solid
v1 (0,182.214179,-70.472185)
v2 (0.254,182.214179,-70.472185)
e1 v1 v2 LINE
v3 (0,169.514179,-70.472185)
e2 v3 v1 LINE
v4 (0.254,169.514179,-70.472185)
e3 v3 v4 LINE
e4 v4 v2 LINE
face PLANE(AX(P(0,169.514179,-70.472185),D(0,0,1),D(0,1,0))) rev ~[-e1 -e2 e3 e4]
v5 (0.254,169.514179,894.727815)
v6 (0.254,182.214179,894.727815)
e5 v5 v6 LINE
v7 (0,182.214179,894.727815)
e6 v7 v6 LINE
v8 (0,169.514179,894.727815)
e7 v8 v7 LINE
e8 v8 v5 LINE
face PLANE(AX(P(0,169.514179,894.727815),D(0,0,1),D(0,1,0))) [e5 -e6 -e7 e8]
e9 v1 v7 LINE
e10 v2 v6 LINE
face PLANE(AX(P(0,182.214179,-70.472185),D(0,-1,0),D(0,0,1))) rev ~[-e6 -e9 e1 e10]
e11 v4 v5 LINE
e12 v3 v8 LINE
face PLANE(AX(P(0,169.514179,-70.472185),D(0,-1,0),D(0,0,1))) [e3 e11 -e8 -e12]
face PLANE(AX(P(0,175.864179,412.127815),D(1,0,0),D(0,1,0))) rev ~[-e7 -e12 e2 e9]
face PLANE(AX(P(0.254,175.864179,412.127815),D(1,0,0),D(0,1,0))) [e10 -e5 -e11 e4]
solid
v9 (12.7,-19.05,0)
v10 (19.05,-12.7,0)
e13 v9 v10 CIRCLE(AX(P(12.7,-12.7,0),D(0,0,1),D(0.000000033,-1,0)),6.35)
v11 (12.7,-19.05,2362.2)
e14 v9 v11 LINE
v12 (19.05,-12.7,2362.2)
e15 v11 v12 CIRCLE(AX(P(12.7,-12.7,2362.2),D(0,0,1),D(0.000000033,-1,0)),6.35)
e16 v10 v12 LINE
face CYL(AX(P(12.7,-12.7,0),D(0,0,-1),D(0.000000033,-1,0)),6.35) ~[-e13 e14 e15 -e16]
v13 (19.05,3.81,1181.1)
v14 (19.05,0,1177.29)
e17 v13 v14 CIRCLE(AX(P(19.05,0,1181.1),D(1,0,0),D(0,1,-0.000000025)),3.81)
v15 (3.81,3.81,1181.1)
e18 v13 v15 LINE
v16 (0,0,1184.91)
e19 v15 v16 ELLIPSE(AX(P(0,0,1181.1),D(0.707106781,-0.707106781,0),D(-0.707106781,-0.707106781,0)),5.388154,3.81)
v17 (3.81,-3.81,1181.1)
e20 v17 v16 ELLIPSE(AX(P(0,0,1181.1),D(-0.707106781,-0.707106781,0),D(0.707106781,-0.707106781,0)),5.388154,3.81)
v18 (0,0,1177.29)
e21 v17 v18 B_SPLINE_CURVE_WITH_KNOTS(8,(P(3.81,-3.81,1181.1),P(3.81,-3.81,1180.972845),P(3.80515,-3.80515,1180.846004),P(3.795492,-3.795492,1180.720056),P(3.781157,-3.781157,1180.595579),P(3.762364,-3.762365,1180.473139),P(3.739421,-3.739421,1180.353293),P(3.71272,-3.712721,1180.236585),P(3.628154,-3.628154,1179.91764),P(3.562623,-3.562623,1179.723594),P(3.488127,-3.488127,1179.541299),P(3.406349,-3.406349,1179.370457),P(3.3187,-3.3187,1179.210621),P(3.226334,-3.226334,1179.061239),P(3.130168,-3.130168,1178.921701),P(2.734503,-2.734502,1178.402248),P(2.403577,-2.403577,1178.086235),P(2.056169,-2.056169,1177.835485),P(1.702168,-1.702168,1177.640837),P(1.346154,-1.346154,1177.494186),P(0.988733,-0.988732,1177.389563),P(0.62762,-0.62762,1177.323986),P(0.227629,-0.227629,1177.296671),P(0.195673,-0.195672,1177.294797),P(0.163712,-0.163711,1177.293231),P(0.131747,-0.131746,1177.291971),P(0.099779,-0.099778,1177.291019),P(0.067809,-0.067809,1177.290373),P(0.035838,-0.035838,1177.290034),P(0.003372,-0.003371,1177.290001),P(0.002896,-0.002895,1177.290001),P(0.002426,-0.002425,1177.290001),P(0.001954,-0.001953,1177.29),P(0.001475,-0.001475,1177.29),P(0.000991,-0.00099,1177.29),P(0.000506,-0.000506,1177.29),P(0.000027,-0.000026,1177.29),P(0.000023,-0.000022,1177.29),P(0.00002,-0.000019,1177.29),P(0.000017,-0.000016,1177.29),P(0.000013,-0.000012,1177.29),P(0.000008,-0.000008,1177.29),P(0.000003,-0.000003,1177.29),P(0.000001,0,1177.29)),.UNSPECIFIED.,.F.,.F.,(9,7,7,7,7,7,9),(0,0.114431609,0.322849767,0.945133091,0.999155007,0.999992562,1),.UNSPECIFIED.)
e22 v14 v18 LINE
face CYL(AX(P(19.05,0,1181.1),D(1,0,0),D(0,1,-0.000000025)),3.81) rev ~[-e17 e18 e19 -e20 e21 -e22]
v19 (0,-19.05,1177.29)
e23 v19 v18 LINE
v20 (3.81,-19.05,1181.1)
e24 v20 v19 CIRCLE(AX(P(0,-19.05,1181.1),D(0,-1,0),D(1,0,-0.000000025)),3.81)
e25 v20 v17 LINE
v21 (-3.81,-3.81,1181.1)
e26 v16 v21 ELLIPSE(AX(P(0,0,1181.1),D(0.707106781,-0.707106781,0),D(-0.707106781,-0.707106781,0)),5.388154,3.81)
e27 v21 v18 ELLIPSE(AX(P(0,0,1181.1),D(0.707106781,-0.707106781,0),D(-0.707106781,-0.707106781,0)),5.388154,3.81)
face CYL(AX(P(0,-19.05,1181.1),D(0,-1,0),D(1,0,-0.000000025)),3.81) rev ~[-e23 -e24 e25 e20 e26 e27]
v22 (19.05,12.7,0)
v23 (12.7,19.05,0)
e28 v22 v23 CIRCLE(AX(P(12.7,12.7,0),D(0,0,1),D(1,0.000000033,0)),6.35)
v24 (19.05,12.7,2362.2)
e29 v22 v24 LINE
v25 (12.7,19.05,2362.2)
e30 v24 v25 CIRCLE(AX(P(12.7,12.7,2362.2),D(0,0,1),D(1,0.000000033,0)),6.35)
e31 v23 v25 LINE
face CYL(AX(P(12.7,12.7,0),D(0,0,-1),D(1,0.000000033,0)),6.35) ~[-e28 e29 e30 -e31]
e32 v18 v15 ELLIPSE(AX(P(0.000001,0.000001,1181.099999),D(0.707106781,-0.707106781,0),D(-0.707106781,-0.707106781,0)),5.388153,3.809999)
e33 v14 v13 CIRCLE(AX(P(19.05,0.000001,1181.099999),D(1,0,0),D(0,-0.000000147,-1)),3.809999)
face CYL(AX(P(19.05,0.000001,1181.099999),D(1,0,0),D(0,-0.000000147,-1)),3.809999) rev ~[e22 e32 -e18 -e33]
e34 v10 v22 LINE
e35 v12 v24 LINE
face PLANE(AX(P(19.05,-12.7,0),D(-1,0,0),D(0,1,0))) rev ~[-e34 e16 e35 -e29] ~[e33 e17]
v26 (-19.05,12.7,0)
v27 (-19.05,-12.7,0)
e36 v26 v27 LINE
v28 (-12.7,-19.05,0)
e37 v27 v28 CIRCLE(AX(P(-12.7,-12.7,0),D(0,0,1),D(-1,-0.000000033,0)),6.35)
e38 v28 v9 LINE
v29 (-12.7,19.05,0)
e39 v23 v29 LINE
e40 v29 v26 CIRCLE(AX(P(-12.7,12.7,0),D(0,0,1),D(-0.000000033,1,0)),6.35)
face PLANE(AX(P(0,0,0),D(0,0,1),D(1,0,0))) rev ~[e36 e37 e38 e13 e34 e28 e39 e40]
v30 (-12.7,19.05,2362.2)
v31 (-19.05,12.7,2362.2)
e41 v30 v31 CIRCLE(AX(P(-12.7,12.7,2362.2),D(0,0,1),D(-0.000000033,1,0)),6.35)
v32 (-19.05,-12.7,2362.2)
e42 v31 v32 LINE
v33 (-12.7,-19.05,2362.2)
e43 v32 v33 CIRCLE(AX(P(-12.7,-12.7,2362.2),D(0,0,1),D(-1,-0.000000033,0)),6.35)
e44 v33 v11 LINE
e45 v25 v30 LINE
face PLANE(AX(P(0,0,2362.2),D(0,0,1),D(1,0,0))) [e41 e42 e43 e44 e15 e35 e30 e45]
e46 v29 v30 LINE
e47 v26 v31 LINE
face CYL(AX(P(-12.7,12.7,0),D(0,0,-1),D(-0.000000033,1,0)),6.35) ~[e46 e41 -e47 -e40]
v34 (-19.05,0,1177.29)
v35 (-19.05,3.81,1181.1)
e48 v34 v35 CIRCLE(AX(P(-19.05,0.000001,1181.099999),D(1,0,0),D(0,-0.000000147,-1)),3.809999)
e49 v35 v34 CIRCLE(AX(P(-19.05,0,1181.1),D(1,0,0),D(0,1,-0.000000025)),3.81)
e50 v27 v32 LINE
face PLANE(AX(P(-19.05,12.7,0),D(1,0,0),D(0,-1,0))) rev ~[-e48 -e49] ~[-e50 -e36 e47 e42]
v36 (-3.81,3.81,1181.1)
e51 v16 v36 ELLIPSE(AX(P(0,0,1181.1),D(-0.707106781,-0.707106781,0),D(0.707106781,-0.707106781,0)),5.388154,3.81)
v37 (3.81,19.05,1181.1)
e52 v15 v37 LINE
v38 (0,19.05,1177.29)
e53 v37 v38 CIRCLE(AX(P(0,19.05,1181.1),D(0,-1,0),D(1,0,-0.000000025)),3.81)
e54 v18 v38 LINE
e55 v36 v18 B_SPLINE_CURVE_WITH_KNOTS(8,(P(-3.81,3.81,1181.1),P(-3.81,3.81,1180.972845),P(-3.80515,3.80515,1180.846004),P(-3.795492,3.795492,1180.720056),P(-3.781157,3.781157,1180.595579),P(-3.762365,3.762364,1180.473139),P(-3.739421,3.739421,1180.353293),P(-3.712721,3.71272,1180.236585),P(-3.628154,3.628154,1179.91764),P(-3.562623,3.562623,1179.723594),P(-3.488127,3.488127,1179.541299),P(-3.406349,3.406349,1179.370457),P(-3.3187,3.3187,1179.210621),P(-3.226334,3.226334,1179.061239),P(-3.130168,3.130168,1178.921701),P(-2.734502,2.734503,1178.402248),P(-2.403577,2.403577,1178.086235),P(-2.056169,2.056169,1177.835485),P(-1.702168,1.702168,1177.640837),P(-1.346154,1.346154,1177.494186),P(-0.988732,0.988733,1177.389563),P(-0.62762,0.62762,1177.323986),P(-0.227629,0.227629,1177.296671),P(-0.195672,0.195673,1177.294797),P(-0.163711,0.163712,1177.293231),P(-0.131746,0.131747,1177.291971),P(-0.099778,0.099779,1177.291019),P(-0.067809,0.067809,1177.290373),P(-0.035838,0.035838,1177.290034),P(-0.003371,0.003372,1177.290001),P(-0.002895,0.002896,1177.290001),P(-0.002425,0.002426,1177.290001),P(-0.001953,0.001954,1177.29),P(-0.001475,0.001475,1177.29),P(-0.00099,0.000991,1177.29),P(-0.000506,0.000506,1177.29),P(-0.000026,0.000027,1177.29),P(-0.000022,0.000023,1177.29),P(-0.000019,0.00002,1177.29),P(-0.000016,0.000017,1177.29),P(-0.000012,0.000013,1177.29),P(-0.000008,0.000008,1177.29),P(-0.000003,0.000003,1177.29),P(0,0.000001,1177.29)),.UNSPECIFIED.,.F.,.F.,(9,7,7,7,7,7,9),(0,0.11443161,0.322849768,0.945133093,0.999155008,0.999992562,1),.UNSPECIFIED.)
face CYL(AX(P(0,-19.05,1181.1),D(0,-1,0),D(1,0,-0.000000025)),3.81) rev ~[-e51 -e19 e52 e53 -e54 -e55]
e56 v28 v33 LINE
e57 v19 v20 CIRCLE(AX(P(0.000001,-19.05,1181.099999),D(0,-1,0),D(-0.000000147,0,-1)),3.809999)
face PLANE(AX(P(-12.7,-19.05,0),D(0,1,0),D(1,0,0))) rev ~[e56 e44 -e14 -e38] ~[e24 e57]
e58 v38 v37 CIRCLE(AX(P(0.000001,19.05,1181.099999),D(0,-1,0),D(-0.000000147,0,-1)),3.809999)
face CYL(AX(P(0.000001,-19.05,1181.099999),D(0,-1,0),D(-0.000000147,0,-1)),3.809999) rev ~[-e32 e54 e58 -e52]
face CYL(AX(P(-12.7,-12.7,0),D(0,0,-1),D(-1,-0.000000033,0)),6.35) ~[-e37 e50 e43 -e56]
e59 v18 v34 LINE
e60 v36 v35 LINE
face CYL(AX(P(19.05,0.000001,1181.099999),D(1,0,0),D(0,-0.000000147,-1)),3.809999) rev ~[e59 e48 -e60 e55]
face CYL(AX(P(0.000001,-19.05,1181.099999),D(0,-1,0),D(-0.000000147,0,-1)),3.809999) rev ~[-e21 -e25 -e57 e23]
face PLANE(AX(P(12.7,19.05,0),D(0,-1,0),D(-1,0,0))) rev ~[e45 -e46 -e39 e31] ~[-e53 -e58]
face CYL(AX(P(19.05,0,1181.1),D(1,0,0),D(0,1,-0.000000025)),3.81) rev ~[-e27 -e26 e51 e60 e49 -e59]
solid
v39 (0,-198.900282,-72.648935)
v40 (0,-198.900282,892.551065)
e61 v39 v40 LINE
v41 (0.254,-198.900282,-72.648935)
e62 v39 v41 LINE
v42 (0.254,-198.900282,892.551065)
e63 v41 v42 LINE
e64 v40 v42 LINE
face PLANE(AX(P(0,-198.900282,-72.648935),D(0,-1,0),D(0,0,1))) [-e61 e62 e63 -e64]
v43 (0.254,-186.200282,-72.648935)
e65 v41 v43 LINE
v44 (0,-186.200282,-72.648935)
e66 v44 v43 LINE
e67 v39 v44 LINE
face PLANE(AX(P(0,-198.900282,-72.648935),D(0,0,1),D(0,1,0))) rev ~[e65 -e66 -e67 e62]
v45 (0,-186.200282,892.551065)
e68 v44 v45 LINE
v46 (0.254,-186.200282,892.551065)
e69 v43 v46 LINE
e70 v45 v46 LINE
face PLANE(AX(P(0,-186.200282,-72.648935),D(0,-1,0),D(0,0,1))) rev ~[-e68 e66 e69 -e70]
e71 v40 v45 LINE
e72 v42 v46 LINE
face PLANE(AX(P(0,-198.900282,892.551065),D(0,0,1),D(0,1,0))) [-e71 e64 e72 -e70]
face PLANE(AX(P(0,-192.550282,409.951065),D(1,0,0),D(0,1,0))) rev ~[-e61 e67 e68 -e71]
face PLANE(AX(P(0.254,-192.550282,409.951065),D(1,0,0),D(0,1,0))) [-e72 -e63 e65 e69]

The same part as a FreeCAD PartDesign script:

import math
import FreeCAD as App
import Part
import Sketcher

V = App.Vector
Q = App.Units.Quantity

doc = App.newDocument("Part")
body = doc.addObject("PartDesign::Body", "Body")

# Sketch on XY plane
sketch1 = body.newObject("Sketcher::SketchObject", "Sketch")
sketch1.AttachmentSupport = (doc.getObject("XY_Plane"), [""])
sketch1.MapMode = "FlatFace"
sketch1.addGeometry(Part.ArcOfCircle(Part.Circle(V(12.7, 12.7, 0), V(0, 0, 1), 6.35), math.radians(0.000002), math.radians(89.999998)), False)
sketch1.addGeometry(Part.LineSegment(V(12.7, 19.05, 0), V(-12.7, 19.05, 0)), False)
sketch1.addGeometry(Part.ArcOfCircle(Part.Circle(V(-12.7, 12.7, 0), V(0, 0, 1), 6.35), math.radians(90.000002), math.radians(179.999998)), False)
sketch1.addGeometry(Part.LineSegment(V(-19.05, 12.7, 0), V(-19.05, -12.7, 0)), False)
sketch1.addGeometry(Part.ArcOfCircle(Part.Circle(V(-12.7, -12.7, 0), V(0, 0, 1), 6.35), math.radians(-179.999998), math.radians(-90.000002)), False)
sketch1.addGeometry(Part.LineSegment(V(-12.7, -19.05, 0), V(12.7, -19.05, 0)), False)
sketch1.addGeometry(Part.ArcOfCircle(Part.Circle(V(12.7, -12.7, 0), V(0, 0, 1), 6.35), math.radians(-89.999998), math.radians(-0.000002)), False)
sketch1.addGeometry(Part.LineSegment(V(19.05, -12.7, 0), V(19.05, 12.7, 0)), False)
sketch1.addConstraint(Sketcher.Constraint("Tangent", 0, 2, 1, 1))
sketch1.addConstraint(Sketcher.Constraint("Tangent", 1, 2, 2, 1))
sketch1.addConstraint(Sketcher.Constraint("Tangent", 2, 2, 3, 1))
sketch1.addConstraint(Sketcher.Constraint("Tangent", 3, 2, 4, 1))
sketch1.addConstraint(Sketcher.Constraint("Tangent", 4, 2, 5, 1))
sketch1.addConstraint(Sketcher.Constraint("Tangent", 5, 2, 6, 1))
sketch1.addConstraint(Sketcher.Constraint("Tangent", 6, 2, 7, 1))
sketch1.addConstraint(Sketcher.Constraint("Tangent", 7, 2, 0, 1))
sketch1.addConstraint(Sketcher.Constraint("Horizontal", 1))
sketch1.addConstraint(Sketcher.Constraint("Vertical", 3))
sketch1.addConstraint(Sketcher.Constraint("Horizontal", 5))
sketch1.addConstraint(Sketcher.Constraint("Vertical", 7))
sketch1.addConstraint(Sketcher.Constraint("Equal", 0, 2))
sketch1.addConstraint(Sketcher.Constraint("Equal", 2, 4))
sketch1.addConstraint(Sketcher.Constraint("Equal", 4, 6))
sketch1.addConstraint(Sketcher.Constraint("Symmetric", 0, 3, 4, 3, -1, 1))
sketch1.addConstraint(Sketcher.Constraint("Equal", 5, 3))
sketch1.addConstraint(Sketcher.Constraint("DistanceX", 1, 2, 1, 1, Q("1 in")))
sketch1.addConstraint(Sketcher.Constraint("Radius", 0, Q("0.25 in")))
pad1 = body.newObject("PartDesign::Pad", "Pad")
pad1.Profile = sketch1
pad1.Length = Q("93 in")

# Sketch on XZ plane
sketch2 = body.newObject("Sketcher::SketchObject", "Sketch001")
sketch2.AttachmentSupport = (doc.getObject("XZ_Plane"), [""])
sketch2.MapMode = "FlatFace"
sketch2.AttachmentOffset = App.Placement(V(0, 0, 0.75 * 25.4), App.Rotation())
sketch2.addGeometry(Part.ArcOfCircle(Part.Circle(V(0.000001, 1181.099999, 0), V(0, 0, 1), 3.809999), math.radians(-90.000008), math.radians(0.000008)), False)
sketch2.addGeometry(Part.ArcOfCircle(Part.Circle(V(0, 1181.1, 0), V(0, 0, 1), 3.81), math.radians(-0.000001), math.radians(270.000001)), False)
sketch2.addConstraint(Sketcher.Constraint("Tangent", 0, 1, 1, 2))
sketch2.addConstraint(Sketcher.Constraint("Coincident", 1, 1, 0, 2))
sketch2.addConstraint(Sketcher.Constraint("PointOnObject", 0, 3, -2))
sketch2.addConstraint(Sketcher.Constraint("PointOnObject", 0, 1, -2))
sketch2.addConstraint(Sketcher.Constraint("Horizontal", 0, 3, 1, 1))
sketch2.addConstraint(Sketcher.Constraint("Radius", 0, Q("0.15 in")))
sketch2.addConstraint(Sketcher.Constraint("DistanceY", -1, 1, 0, 3, Q("46.5 in")))
pocket1 = body.newObject("PartDesign::Pocket", "Pocket")
pocket1.Profile = sketch2
pocket1.Length = Q("1.5 in")

# Sketch on YZ plane
sketch3 = body.newObject("Sketcher::SketchObject", "Sketch002")
sketch3.AttachmentSupport = (doc.getObject("YZ_Plane"), [""])
sketch3.MapMode = "FlatFace"
sketch3.AttachmentOffset = App.Placement(V(0, 0, 0.75 * 25.4), App.Rotation())
sketch3.addGeometry(Part.ArcOfCircle(Part.Circle(V(0.000001, 1181.099999, 0), V(0, 0, 1), 3.809999), math.radians(-90.000008), math.radians(0.000008)), False)
sketch3.addGeometry(Part.ArcOfCircle(Part.Circle(V(0, 1181.1, 0), V(0, 0, 1), 3.81), math.radians(-0.000001), math.radians(270.000001)), False)
sketch3.addConstraint(Sketcher.Constraint("Tangent", 0, 1, 1, 2))
sketch3.addConstraint(Sketcher.Constraint("Coincident", 1, 1, 0, 2))
sketch3.addConstraint(Sketcher.Constraint("PointOnObject", 0, 3, -2))
sketch3.addConstraint(Sketcher.Constraint("PointOnObject", 0, 1, -2))
sketch3.addConstraint(Sketcher.Constraint("Horizontal", 0, 3, 1, 1))
sketch3.addConstraint(Sketcher.Constraint("Radius", 0, Q("0.15 in")))
sketch3.addConstraint(Sketcher.Constraint("DistanceY", -1, 1, 0, 3, Q("46.5 in")))
pocket2 = body.newObject("PartDesign::Pocket", "Pocket001")
pocket2.Profile = sketch3
pocket2.Length = Q("1.5 in")
body2 = doc.addObject("PartDesign::Body", "Body001")

# Sketch on YZ plane
sketch4 = body2.newObject("Sketcher::SketchObject", "Sketch003")
sketch4.AttachmentSupport = (doc.getObject("YZ_Plane001"), [""])
sketch4.MapMode = "FlatFace"
sketch4.addGeometry(Part.LineSegment(V(-198.900282, 892.551065, 0), V(-198.900282, -72.648935, 0)), False)
sketch4.addGeometry(Part.LineSegment(V(-198.900282, -72.648935, 0), V(-186.200282, -72.648935, 0)), False)
sketch4.addGeometry(Part.LineSegment(V(-186.200282, -72.648935, 0), V(-186.200282, 892.551065, 0)), False)
sketch4.addGeometry(Part.LineSegment(V(-186.200282, 892.551065, 0), V(-198.900282, 892.551065, 0)), False)
sketch4.addConstraint(Sketcher.Constraint("Coincident", 0, 2, 1, 1))
sketch4.addConstraint(Sketcher.Constraint("Coincident", 1, 2, 2, 1))
sketch4.addConstraint(Sketcher.Constraint("Coincident", 2, 2, 3, 1))
sketch4.addConstraint(Sketcher.Constraint("Coincident", 3, 2, 0, 1))
sketch4.addConstraint(Sketcher.Constraint("Vertical", 0))
sketch4.addConstraint(Sketcher.Constraint("Horizontal", 1))
sketch4.addConstraint(Sketcher.Constraint("Vertical", 2))
sketch4.addConstraint(Sketcher.Constraint("Horizontal", 3))
sketch4.addConstraint(Sketcher.Constraint("DistanceY", 0, 2, 0, 1, Q("38 in")))
sketch4.addConstraint(Sketcher.Constraint("DistanceX", 1, 1, 1, 2, Q("0.5 in")))
sketch4.addConstraint(Sketcher.Constraint("DistanceX", 0, 2, -1, 1, 198.900282))
sketch4.addConstraint(Sketcher.Constraint("DistanceY", 0, 2, -1, 1, 72.648935))
pad2 = body2.newObject("PartDesign::Pad", "Pad001")
pad2.Profile = sketch4
pad2.Length = Q("0.01 in")
body3 = doc.addObject("PartDesign::Body", "Body002")

# Sketch on YZ plane
sketch5 = body3.newObject("Sketcher::SketchObject", "Sketch004")
sketch5.AttachmentSupport = (doc.getObject("YZ_Plane002"), [""])
sketch5.MapMode = "FlatFace"
sketch5.addGeometry(Part.LineSegment(V(169.514179, 894.727815, 0), V(169.514179, -70.472185, 0)), False)
sketch5.addGeometry(Part.LineSegment(V(169.514179, -70.472185, 0), V(182.214179, -70.472185, 0)), False)
sketch5.addGeometry(Part.LineSegment(V(182.214179, -70.472185, 0), V(182.214179, 894.727815, 0)), False)
sketch5.addGeometry(Part.LineSegment(V(182.214179, 894.727815, 0), V(169.514179, 894.727815, 0)), False)
sketch5.addConstraint(Sketcher.Constraint("Coincident", 0, 2, 1, 1))
sketch5.addConstraint(Sketcher.Constraint("Coincident", 1, 2, 2, 1))
sketch5.addConstraint(Sketcher.Constraint("Coincident", 2, 2, 3, 1))
sketch5.addConstraint(Sketcher.Constraint("Coincident", 3, 2, 0, 1))
sketch5.addConstraint(Sketcher.Constraint("Vertical", 0))
sketch5.addConstraint(Sketcher.Constraint("Horizontal", 1))
sketch5.addConstraint(Sketcher.Constraint("Vertical", 2))
sketch5.addConstraint(Sketcher.Constraint("Horizontal", 3))
sketch5.addConstraint(Sketcher.Constraint("DistanceY", 0, 2, 0, 1, Q("38 in")))
sketch5.addConstraint(Sketcher.Constraint("DistanceX", 1, 1, 1, 2, Q("0.5 in")))
sketch5.addConstraint(Sketcher.Constraint("DistanceX", -1, 1, 0, 2, 169.514179))
sketch5.addConstraint(Sketcher.Constraint("DistanceY", 0, 2, -1, 1, 70.472185))
pad3 = body3.newObject("PartDesign::Pad", "Pad002")
pad3.Profile = sketch5
pad3.Length = Q("0.01 in")

doc.recompute()
